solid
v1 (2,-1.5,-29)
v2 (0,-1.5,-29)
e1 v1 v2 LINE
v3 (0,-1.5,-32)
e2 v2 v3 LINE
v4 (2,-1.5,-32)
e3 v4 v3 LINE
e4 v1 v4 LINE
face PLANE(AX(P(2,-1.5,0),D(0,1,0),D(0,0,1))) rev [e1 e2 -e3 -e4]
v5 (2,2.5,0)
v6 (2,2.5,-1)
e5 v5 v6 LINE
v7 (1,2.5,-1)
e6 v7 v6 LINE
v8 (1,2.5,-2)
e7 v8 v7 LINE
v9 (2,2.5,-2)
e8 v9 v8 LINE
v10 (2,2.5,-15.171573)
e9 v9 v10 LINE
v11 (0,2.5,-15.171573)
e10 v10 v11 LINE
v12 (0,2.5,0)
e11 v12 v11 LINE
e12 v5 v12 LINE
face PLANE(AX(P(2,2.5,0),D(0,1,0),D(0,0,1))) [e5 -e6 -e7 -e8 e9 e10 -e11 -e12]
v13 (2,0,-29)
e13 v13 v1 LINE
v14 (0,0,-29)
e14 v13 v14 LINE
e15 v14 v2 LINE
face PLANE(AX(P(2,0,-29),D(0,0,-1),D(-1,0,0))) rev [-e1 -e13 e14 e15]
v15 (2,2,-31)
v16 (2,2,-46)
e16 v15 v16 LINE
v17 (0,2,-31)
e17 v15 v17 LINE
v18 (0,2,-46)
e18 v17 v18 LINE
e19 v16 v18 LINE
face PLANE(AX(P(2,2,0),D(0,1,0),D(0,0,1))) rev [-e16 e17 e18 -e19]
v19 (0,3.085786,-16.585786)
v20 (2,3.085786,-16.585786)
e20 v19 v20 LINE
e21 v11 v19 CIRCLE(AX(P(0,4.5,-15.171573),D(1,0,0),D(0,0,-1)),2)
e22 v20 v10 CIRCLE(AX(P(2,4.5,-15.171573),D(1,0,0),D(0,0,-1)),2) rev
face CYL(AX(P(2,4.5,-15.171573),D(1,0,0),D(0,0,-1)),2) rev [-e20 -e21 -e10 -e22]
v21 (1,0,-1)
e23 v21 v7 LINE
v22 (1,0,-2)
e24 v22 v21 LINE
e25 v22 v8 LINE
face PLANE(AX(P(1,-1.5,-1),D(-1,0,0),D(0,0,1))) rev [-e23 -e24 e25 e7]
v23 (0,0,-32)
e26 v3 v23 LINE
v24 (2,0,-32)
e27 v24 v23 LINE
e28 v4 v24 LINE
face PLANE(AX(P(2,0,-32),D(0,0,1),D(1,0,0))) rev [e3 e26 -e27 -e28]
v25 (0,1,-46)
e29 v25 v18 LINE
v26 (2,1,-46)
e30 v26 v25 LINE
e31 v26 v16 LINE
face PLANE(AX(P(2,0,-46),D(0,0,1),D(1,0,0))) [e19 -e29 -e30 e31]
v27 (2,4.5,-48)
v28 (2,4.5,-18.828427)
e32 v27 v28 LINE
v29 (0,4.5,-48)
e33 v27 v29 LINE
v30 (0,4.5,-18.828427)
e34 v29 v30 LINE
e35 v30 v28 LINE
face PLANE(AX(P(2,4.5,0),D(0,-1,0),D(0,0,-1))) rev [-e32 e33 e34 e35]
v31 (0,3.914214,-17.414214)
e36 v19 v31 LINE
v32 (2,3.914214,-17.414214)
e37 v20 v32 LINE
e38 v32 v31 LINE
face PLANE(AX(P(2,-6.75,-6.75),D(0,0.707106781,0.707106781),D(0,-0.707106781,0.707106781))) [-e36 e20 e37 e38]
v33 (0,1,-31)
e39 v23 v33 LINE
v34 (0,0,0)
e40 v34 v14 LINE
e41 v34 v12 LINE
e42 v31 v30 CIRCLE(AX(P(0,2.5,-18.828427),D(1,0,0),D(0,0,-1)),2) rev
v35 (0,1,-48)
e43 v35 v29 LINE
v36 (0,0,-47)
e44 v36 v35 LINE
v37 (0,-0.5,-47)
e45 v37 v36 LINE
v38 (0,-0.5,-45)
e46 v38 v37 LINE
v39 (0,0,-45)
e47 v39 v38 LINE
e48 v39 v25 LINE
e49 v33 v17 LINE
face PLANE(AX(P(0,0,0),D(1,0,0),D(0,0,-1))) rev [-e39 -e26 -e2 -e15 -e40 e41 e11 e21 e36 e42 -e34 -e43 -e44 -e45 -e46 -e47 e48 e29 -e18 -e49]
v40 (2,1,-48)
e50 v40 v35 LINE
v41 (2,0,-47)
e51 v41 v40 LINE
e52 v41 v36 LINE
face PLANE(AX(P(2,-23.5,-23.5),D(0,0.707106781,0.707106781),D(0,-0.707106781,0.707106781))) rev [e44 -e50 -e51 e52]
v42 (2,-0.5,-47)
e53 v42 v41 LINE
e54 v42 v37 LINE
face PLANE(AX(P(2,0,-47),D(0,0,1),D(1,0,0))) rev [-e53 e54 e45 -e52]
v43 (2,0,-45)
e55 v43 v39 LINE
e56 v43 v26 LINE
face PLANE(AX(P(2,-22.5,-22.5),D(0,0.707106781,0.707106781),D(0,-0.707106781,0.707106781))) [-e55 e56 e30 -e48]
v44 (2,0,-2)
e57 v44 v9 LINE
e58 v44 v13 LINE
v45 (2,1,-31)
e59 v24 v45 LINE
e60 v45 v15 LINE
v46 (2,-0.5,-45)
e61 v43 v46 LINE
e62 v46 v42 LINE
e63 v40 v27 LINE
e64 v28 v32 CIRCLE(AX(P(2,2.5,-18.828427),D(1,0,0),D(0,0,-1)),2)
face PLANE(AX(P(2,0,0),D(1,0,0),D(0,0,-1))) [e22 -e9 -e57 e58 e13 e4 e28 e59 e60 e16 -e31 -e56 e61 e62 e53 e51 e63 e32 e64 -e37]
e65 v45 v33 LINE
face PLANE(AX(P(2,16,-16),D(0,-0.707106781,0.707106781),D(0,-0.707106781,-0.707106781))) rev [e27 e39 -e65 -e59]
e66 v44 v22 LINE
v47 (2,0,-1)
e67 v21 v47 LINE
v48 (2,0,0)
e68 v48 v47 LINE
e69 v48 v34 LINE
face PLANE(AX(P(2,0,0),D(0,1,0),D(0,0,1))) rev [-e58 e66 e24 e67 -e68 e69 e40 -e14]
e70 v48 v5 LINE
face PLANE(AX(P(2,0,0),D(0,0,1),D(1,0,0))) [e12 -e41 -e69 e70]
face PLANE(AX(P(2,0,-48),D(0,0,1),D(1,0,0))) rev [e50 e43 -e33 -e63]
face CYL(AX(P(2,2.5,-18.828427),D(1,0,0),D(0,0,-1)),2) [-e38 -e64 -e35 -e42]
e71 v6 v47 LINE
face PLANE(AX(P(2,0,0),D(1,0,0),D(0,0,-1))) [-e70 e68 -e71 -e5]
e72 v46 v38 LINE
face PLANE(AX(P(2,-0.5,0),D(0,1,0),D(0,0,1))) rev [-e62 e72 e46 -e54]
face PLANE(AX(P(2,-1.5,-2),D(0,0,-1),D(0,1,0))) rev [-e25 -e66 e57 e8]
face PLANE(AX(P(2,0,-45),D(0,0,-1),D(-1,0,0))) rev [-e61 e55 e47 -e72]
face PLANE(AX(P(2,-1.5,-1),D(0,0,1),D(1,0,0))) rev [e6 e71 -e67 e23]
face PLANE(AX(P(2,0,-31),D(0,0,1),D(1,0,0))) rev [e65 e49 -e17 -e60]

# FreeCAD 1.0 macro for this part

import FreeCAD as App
import Part
import Sketcher

V = App.Vector


def edges_at(feature, points):
    """Names of the edges that pass closest to the given points."""
    edges = feature.Shape.Edges
    near = lambda p: min(range(len(edges)), key=lambda i: edges[i].distToShape(Part.Vertex(*p))[0])
    return sorted({f"Edge{near(p) + 1}" for p in points})


def add_polygon(sketch, points):
    """Adds a closed chain of lines whose ends are joined by coincident constraints."""
    first, n = sketch.GeometryCount, len(points)
    for a, b in zip(points, points[1:] + points[:1]):
        sketch.addGeometry(Part.LineSegment(App.Vector(*a, 0), App.Vector(*b, 0)), False)
    for i in range(n):
        sketch.addConstraint(Sketcher.Constraint("Coincident", first + i, 2, first + (i + 1) % n, 1))

doc = App.newDocument("Part")
body = doc.addObject("PartDesign::Body", "Body")

# Sketch on YZ plane
sketch1 = body.newObject("Sketcher::SketchObject", "Sketch")
sketch1.AttachmentSupport = (doc.getObject("YZ_Plane"), [""])
sketch1.MapMode = "FlatFace"
add_polygon(sketch1, [(1, -48), (4.5, -48), (4.5, -18), (2.5, -16), (2.5, 0), (0, 0), (0, -29), (-1.5, -29), (-1.5, -32), (0, -32), (1, -31), (2, -31), (2, -46), (1, -46), (0, -45), (-0.5, -45), (-0.5, -47), (0, -47)])  # lines 0-17
sketch1.addConstraint(Sketcher.Constraint("Horizontal", 0))
sketch1.addConstraint(Sketcher.Constraint("Vertical", 1))
sketch1.addConstraint(Sketcher.Constraint("Vertical", 3))
sketch1.addConstraint(Sketcher.Constraint("Horizontal", 4))
sketch1.addConstraint(Sketcher.Constraint("Vertical", 5))
sketch1.addConstraint(Sketcher.Constraint("Horizontal", 6))
sketch1.addConstraint(Sketcher.Constraint("Vertical", 7))
sketch1.addConstraint(Sketcher.Constraint("Horizontal", 8))
sketch1.addConstraint(Sketcher.Constraint("Horizontal", 10))
sketch1.addConstraint(Sketcher.Constraint("Vertical", 11))
sketch1.addConstraint(Sketcher.Constraint("Horizontal", 12))
sketch1.addConstraint(Sketcher.Constraint("Horizontal", 14))
sketch1.addConstraint(Sketcher.Constraint("Vertical", 15))
sketch1.addConstraint(Sketcher.Constraint("Horizontal", 16))
sketch1.addConstraint(Sketcher.Constraint("Coincident", 4, 2, -1, 1))
sketch1.addConstraint(Sketcher.Constraint("PointOnObject", 8, 2, -2))
sketch1.addConstraint(Sketcher.Constraint("PointOnObject", 13, 2, -2))
sketch1.addConstraint(Sketcher.Constraint("PointOnObject", 16, 2, -2))
sketch1.addConstraint(Sketcher.Constraint("Perpendicular", 2, 9))
sketch1.addConstraint(Sketcher.Constraint("Perpendicular", 9, 13))
sketch1.addConstraint(Sketcher.Constraint("Parallel", 13, 17))
sketch1.addConstraint(Sketcher.Constraint("Vertical", 9, 2, 12, 2))
sketch1.addConstraint(Sketcher.Constraint("Vertical", 12, 2, 17, 2))
sketch1.addConstraint(Sketcher.Constraint("Equal", 9, 13))
sketch1.addConstraint(Sketcher.Constraint("DistanceX", 10, 1, 10, 2, 1.0))
sketch1.addConstraint(Sketcher.Constraint("DistanceY", 1, 1, 1, 2, 30.0))
sketch1.addConstraint(Sketcher.Constraint("DistanceY", 3, 1, 3, 2, 16.0))
sketch1.addConstraint(Sketcher.Constraint("DistanceY", 5, 2, 5, 1, 29.0))
sketch1.addConstraint(Sketcher.Constraint("DistanceY", 7, 2, 7, 1, 3.0))
sketch1.addConstraint(Sketcher.Constraint("DistanceY", 11, 2, 11, 1, 15.0))
sketch1.addConstraint(Sketcher.Constraint("DistanceY", 15, 2, 15, 1, 2.0))
sketch1.addConstraint(Sketcher.Constraint("DistanceX", 0, 1, 0, 2, 3.5))
sketch1.addConstraint(Sketcher.Constraint("DistanceX", 4, 2, 4, 1, 2.5))
sketch1.addConstraint(Sketcher.Constraint("DistanceX", 6, 2, 6, 1, 1.5))
sketch1.addConstraint(Sketcher.Constraint("DistanceX", 14, 2, 14, 1, 0.5))
pad1 = body.newObject("PartDesign::Pad", "Pad")
pad1.Profile = sketch1
pad1.Length = 2
doc.recompute()

fillet = body.newObject("PartDesign::Fillet", "Fillet")
fillet.Base = (pad1, edges_at(pad1, [(1, 2.5, -16), (1, 4.5, -18)]))
fillet.Radius = 2

# Sketch on XZ plane
sketch2 = body.newObject("Sketcher::SketchObject", "Sketch001")
sketch2.AttachmentSupport = (doc.getObject("XZ_Plane"), [""])
sketch2.MapMode = "FlatFace"
sketch2.AttachmentOffset = App.Placement(V(0, 0, -2.5), App.Rotation())
add_polygon(sketch2, [(1, -2), (1, -1), (2, -1), (2, -2)])  # lines 0-3
sketch2.addConstraint(Sketcher.Constraint("Vertical", 0))
sketch2.addConstraint(Sketcher.Constraint("Horizontal", 1))
sketch2.addConstraint(Sketcher.Constraint("Vertical", 2))
sketch2.addConstraint(Sketcher.Constraint("Horizontal", 3))
sketch2.addConstraint(Sketcher.Constraint("Equal", 3, 0))
sketch2.addConstraint(Sketcher.Constraint("DistanceX", 1, 1, 1, 2, 1.0))
sketch2.addConstraint(Sketcher.Constraint("DistanceX", -1, 1, 0, 2, 1.0))
sketch2.addConstraint(Sketcher.Constraint("DistanceY", 0, 2, -1, 1, 1.0))
pocket1 = body.newObject("PartDesign::Pocket", "Pocket")
pocket1.Profile = sketch2
pocket1.Type = "ThroughAll"
pocket1.Reversed = True

doc.recompute()
